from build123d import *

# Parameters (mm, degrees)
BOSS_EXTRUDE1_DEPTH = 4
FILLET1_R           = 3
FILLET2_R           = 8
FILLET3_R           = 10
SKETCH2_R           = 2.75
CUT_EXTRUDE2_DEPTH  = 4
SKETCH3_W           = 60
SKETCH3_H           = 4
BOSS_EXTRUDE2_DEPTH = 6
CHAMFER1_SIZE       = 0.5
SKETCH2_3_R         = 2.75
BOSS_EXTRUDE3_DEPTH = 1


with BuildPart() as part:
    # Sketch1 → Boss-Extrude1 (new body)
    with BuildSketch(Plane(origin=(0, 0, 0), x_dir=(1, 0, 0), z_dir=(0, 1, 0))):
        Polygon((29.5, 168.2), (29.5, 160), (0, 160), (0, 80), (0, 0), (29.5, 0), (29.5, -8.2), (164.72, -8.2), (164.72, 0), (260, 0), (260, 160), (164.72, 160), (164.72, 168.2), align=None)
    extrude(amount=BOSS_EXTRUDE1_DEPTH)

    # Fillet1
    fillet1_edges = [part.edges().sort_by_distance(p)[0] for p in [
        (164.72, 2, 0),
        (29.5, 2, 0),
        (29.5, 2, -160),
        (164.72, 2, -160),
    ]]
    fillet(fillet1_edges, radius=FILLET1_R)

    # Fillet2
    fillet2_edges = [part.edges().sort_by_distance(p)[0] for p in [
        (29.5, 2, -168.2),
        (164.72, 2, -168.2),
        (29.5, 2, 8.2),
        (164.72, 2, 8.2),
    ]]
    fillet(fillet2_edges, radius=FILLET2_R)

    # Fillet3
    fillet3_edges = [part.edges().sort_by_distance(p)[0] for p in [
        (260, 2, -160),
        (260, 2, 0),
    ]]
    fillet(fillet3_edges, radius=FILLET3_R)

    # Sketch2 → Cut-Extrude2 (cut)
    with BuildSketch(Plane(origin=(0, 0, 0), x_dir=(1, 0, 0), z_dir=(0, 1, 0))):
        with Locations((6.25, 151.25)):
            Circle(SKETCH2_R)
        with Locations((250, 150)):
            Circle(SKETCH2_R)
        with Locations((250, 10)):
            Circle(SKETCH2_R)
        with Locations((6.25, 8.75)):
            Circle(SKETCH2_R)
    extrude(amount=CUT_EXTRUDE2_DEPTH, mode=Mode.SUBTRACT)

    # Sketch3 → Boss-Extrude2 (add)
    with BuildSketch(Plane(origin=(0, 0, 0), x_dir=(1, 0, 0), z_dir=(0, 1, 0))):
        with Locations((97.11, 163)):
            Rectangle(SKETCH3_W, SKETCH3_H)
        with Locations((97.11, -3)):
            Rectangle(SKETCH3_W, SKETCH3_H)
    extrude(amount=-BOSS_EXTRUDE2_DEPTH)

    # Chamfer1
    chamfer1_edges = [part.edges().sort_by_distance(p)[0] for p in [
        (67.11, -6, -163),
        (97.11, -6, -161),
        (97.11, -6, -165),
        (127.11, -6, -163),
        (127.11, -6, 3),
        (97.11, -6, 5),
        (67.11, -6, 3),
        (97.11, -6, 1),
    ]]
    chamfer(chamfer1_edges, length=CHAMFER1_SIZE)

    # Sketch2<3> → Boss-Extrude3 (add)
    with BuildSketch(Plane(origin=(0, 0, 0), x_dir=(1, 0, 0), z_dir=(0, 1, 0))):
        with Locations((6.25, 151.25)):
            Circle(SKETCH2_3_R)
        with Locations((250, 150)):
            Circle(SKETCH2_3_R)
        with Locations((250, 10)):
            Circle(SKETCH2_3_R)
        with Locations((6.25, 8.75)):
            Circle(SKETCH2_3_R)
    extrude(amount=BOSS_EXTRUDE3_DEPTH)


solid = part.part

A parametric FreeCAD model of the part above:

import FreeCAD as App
import Part
import Sketcher

V = App.Vector
Q = App.Units.Quantity


def edges_at(feature, points):
    """Names of the edges that pass closest to the given points."""
    edges = feature.Shape.Edges
    near = lambda p: min(range(len(edges)), key=lambda i: edges[i].distToShape(Part.Vertex(*p))[0])
    return sorted({f"Edge{near(p) + 1}" for p in points})

doc = App.newDocument("Part")
body = doc.addObject("PartDesign::Body", "Body")

# Sketch on XZ plane
sketch1 = body.newObject("Sketcher::SketchObject", "Sketch")
sketch1.AttachmentSupport = (doc.getObject("XZ_Plane"), [""])
sketch1.MapMode = "FlatFace"
sketch1.addGeometry(Part.LineSegment(V(29.5, -168.2, 0), V(29.5, -160, 0)), False)
sketch1.addGeometry(Part.LineSegment(V(29.5, -160, 0), V(0, -160, 0)), False)
sketch1.addGeometry(Part.LineSegment(V(0, -160, 0), V(0, 0, 0)), False)
sketch1.addGeometry(Part.LineSegment(V(0, 0, 0), V(29.5, 0, 0)), False)
sketch1.addGeometry(Part.LineSegment(V(29.5, 0, 0), V(29.5, 8.2, 0)), False)
sketch1.addGeometry(Part.LineSegment(V(29.5, 8.2, 0), V(164.72, 8.2, 0)), False)
sketch1.addGeometry(Part.LineSegment(V(164.72, 8.2, 0), V(164.72, 0, 0)), False)
sketch1.addGeometry(Part.LineSegment(V(164.72, 0, 0), V(260, 0, 0)), False)
sketch1.addGeometry(Part.LineSegment(V(260, 0, 0), V(260, -160, 0)), False)
sketch1.addGeometry(Part.LineSegment(V(260, -160, 0), V(164.72, -160, 0)), False)
sketch1.addGeometry(Part.LineSegment(V(164.72, -160, 0), V(164.72, -168.2, 0)), False)
sketch1.addGeometry(Part.LineSegment(V(164.72, -168.2, 0), V(29.5, -168.2, 0)), False)
sketch1.addConstraint(Sketcher.Constraint("Coincident", 0, 2, 1, 1))
sketch1.addConstraint(Sketcher.Constraint("Coincident", 1, 2, 2, 1))
sketch1.addConstraint(Sketcher.Constraint("Coincident", 2, 2, 3, 1))
sketch1.addConstraint(Sketcher.Constraint("Coincident", 3, 2, 4, 1))
sketch1.addConstraint(Sketcher.Constraint("Coincident", 4, 2, 5, 1))
sketch1.addConstraint(Sketcher.Constraint("Coincident", 5, 2, 6, 1))
sketch1.addConstraint(Sketcher.Constraint("Coincident", 6, 2, 7, 1))
sketch1.addConstraint(Sketcher.Constraint("Coincident", 7, 2, 8, 1))
sketch1.addConstraint(Sketcher.Constraint("Coincident", 8, 2, 9, 1))
sketch1.addConstraint(Sketcher.Constraint("Coincident", 9, 2, 10, 1))
sketch1.addConstraint(Sketcher.Constraint("Coincident", 10, 2, 11, 1))
sketch1.addConstraint(Sketcher.Constraint("Coincident", 11, 2, 0, 1))
sketch1.addConstraint(Sketcher.Constraint("Vertical", 0))
sketch1.addConstraint(Sketcher.Constraint("Horizontal", 1))
sketch1.addConstraint(Sketcher.Constraint("Vertical", 2))
sketch1.addConstraint(Sketcher.Constraint("Horizontal", 3))
sketch1.addConstraint(Sketcher.Constraint("Vertical", 4))
sketch1.addConstraint(Sketcher.Constraint("Horizontal", 5))
sketch1.addConstraint(Sketcher.Constraint("Vertical", 6))
sketch1.addConstraint(Sketcher.Constraint("Horizontal", 7))
sketch1.addConstraint(Sketcher.Constraint("Vertical", 8))
sketch1.addConstraint(Sketcher.Constraint("Horizontal", 9))
sketch1.addConstraint(Sketcher.Constraint("Vertical", 10))
sketch1.addConstraint(Sketcher.Constraint("Horizontal", 11))
sketch1.addConstraint(Sketcher.Constraint("Coincident", 2, 2, -1, 1))
sketch1.addConstraint(Sketcher.Constraint("PointOnObject", 6, 2, -1))
sketch1.addConstraint(Sketcher.Constraint("Horizontal", 1, 2, 8, 2))
sketch1.addConstraint(Sketcher.Constraint("Vertical", 0, 2, 3, 2))
sketch1.addConstraint(Sketcher.Constraint("Vertical", 6, 2, 9, 2))
sketch1.addConstraint(Sketcher.Constraint("Equal", 0, 4))
sketch1.addConstraint(Sketcher.Constraint("DistanceY", 2, 1, 2, 2, Q("160 mm")))
sketch1.addConstraint(Sketcher.Constraint("DistanceX", 1, 2, 1, 1, Q("29.5 mm")))
sketch1.addConstraint(Sketcher.Constraint("DistanceY", 0, 1, 0, 2, Q("8.2 mm")))
sketch1.addConstraint(Sketcher.Constraint("DistanceX", -1, 1, 7, 2, Q("260 mm")))
sketch1.addConstraint(Sketcher.Constraint("DistanceX", 5, 1, 5, 2, Q("135.22 mm")))
pad1 = body.newObject("PartDesign::Pad", "Pad")
pad1.Profile = sketch1
pad1.Length = 4
pad1.Reversed = True
doc.recompute()

fillet = body.newObject("PartDesign::Fillet", "Fillet")
fillet.Base = (pad1, edges_at(pad1, [
    (164.72, 2, 0),
    (29.5, 2, 0),
    (29.5, 2, -160),
    (164.72, 2, -160),
]))
fillet.Radius = 3
doc.recompute()

fillet2 = body.newObject("PartDesign::Fillet", "Fillet001")
fillet2.Base = (fillet, edges_at(fillet, [
    (29.5, 2, -168.2),
    (164.72, 2, -168.2),
    (29.5, 2, 8.2),
    (164.72, 2, 8.2),
]))
fillet2.Radius = 8
doc.recompute()

fillet3 = body.newObject("PartDesign::Fillet", "Fillet002")
fillet3.Base = (fillet2, edges_at(fillet2, [(260, 2, -160), (260, 2, 0)]))
fillet3.Radius = 10

# Sketch on XZ plane
sketch2 = body.newObject("Sketcher::SketchObject", "Sketch001")
sketch2.AttachmentSupport = (doc.getObject("XZ_Plane"), [""])
sketch2.MapMode = "FlatFace"
sketch2.addGeometry(Part.Circle(V(6.25, -151.25, 0), V(0, 0, 1), 2.75), False)
sketch2.addGeometry(Part.Circle(V(250, -150, 0), V(0, 0, 1), 2.75), False)
sketch2.addGeometry(Part.Circle(V(250, -10, 0), V(0, 0, 1), 2.75), False)
sketch2.addGeometry(Part.Circle(V(6.25, -8.75, 0), V(0, 0, 1), 2.75), False)
sketch2.addConstraint(Sketcher.Constraint("Equal", 0, 1))
sketch2.addConstraint(Sketcher.Constraint("Equal", 1, 2))
sketch2.addConstraint(Sketcher.Constraint("Equal", 2, 3))
sketch2.addConstraint(Sketcher.Constraint("Vertical", 1, 3, 2, 3))
sketch2.addConstraint(Sketcher.Constraint("Vertical", 0, 3, 3, 3))
sketch2.addConstraint(Sketcher.Constraint("Diameter", 0, Q("5.5 mm")))
sketch2.addConstraint(Sketcher.Constraint("DistanceX", -1, 1, 1, 3, Q("250 mm")))
sketch2.addConstraint(Sketcher.Constraint("DistanceY", 1, 3, -1, 1, Q("150 mm")))
sketch2.addConstraint(Sketcher.Constraint("DistanceY", 2, 3, -1, 1, Q("10 mm")))
sketch2.addConstraint(Sketcher.Constraint("DistanceY", 0, 3, 3, 3, Q("142.5 mm")))
sketch2.addConstraint(Sketcher.Constraint("DistanceX", -1, 1, 0, 3, Q("6.25 mm")))
sketch2.addConstraint(Sketcher.Constraint("DistanceY", 0, 3, -1, 1, Q("151.25 mm")))
pocket1 = body.newObject("PartDesign::Pocket", "Pocket")
pocket1.Profile = sketch2
pocket1.Length = 4

# Sketch on XZ plane
sketch3 = body.newObject("Sketcher::SketchObject", "Sketch002")
sketch3.AttachmentSupport = (doc.getObject("XZ_Plane"), [""])
sketch3.MapMode = "FlatFace"
sketch3.addGeometry(Part.LineSegment(V(67.11, -165, 0), V(67.11, -161, 0)), False)
sketch3.addGeometry(Part.LineSegment(V(67.11, -161, 0), V(127.11, -161, 0)), False)
sketch3.addGeometry(Part.LineSegment(V(127.11, -161, 0), V(127.11, -165, 0)), False)
sketch3.addGeometry(Part.LineSegment(V(127.11, -165, 0), V(67.11, -165, 0)), False)
sketch3.addGeometry(Part.LineSegment(V(67.11, 1, 0), V(67.11, 5, 0)), False)
sketch3.addGeometry(Part.LineSegment(V(67.11, 5, 0), V(127.11, 5, 0)), False)
sketch3.addGeometry(Part.LineSegment(V(127.11, 5, 0), V(127.11, 1, 0)), False)
sketch3.addGeometry(Part.LineSegment(V(127.11, 1, 0), V(67.11, 1, 0)), False)
sketch3.addConstraint(Sketcher.Constraint("Coincident", 0, 2, 1, 1))
sketch3.addConstraint(Sketcher.Constraint("Coincident", 1, 2, 2, 1))
sketch3.addConstraint(Sketcher.Constraint("Coincident", 2, 2, 3, 1))
sketch3.addConstraint(Sketcher.Constraint("Coincident", 3, 2, 0, 1))
sketch3.addConstraint(Sketcher.Constraint("Coincident", 4, 2, 5, 1))
sketch3.addConstraint(Sketcher.Constraint("Coincident", 5, 2, 6, 1))
sketch3.addConstraint(Sketcher.Constraint("Coincident", 6, 2, 7, 1))
sketch3.addConstraint(Sketcher.Constraint("Coincident", 7, 2, 4, 1))
sketch3.addConstraint(Sketcher.Constraint("Vertical", 0))
sketch3.addConstraint(Sketcher.Constraint("Horizontal", 1))
sketch3.addConstraint(Sketcher.Constraint("Vertical", 2))
sketch3.addConstraint(Sketcher.Constraint("Horizontal", 3))
sketch3.addConstraint(Sketcher.Constraint("Vertical", 4))
sketch3.addConstraint(Sketcher.Constraint("Horizontal", 5))
sketch3.addConstraint(Sketcher.Constraint("Vertical", 6))
sketch3.addConstraint(Sketcher.Constraint("Horizontal", 7))
sketch3.addConstraint(Sketcher.Constraint("Vertical", 3, 2, 4, 2))
sketch3.addConstraint(Sketcher.Constraint("Vertical", 2, 2, 5, 2))
sketch3.addConstraint(Sketcher.Constraint("Equal", 2, 4))
sketch3.addConstraint(Sketcher.Constraint("DistanceX", 1, 1, 1, 2, Q("60 mm")))
sketch3.addConstraint(Sketcher.Constraint("DistanceY", 0, 1, 0, 2, Q("4 mm")))
sketch3.addConstraint(Sketcher.Constraint("DistanceY", 0, 2, -1, 1, Q("161 mm")))
sketch3.addConstraint(Sketcher.Constraint("DistanceY", -1, 1, 4, 2, Q("5 mm")))
sketch3.addConstraint(Sketcher.Constraint("DistanceX", -1, 1, 0, 2, Q("67.11 mm")))
pad2 = body.newObject("PartDesign::Pad", "Pad001")
pad2.Profile = sketch3
pad2.Length = 6
doc.recompute()

chamfer = body.newObject("PartDesign::Chamfer", "Chamfer")
chamfer.Base = (pad2, edges_at(pad2, [
    (67.11, -6, -163),
    (97.11, -6, -161),
    (97.11, -6, -165),
    (127.11, -6, -163),
    (127.11, -6, 3),
    (97.11, -6, 5),
    (67.11, -6, 3),
    (97.11, -6, 1),
]))
chamfer.Size = 0.5

# Sketch on XZ plane
sketch4 = body.newObject("Sketcher::SketchObject", "Sketch003")
sketch4.AttachmentSupport = (doc.getObject("XZ_Plane"), [""])
sketch4.MapMode = "FlatFace"
sketch4.addGeometry(Part.Circle(V(6.25, -151.25, 0), V(0, 0, 1), 2.75), False)
sketch4.addGeometry(Part.Circle(V(250, -150, 0), V(0, 0, 1), 2.75), False)
sketch4.addGeometry(Part.Circle(V(250, -10, 0), V(0, 0, 1), 2.75), False)
sketch4.addGeometry(Part.Circle(V(6.25, -8.75, 0), V(0, 0, 1), 2.75), False)
sketch4.addConstraint(Sketcher.Constraint("Equal", 0, 1))
sketch4.addConstraint(Sketcher.Constraint("Equal", 1, 2))
sketch4.addConstraint(Sketcher.Constraint("Equal", 2, 3))
sketch4.addConstraint(Sketcher.Constraint("Vertical", 1, 3, 2, 3))
sketch4.addConstraint(Sketcher.Constraint("Vertical", 0, 3, 3, 3))
sketch4.addConstraint(Sketcher.Constraint("Diameter", 0, Q("5.5 mm")))
sketch4.addConstraint(Sketcher.Constraint("DistanceX", -1, 1, 1, 3, Q("250 mm")))
sketch4.addConstraint(Sketcher.Constraint("DistanceY", 1, 3, -1, 1, Q("150 mm")))
sketch4.addConstraint(Sketcher.Constraint("DistanceY", 2, 3, -1, 1, Q("10 mm")))
sketch4.addConstraint(Sketcher.Constraint("DistanceY", 0, 3, 3, 3, Q("142.5 mm")))
sketch4.addConstraint(Sketcher.Constraint("DistanceX", -1, 1, 0, 3, Q("6.25 mm")))
sketch4.addConstraint(Sketcher.Constraint("DistanceY", 0, 3, -1, 1, Q("151.25 mm")))
pad3 = body.newObject("PartDesign::Pad", "Pad002")
pad3.Profile = sketch4
pad3.Length = 1
pad3.Reversed = True

doc.recompute()
